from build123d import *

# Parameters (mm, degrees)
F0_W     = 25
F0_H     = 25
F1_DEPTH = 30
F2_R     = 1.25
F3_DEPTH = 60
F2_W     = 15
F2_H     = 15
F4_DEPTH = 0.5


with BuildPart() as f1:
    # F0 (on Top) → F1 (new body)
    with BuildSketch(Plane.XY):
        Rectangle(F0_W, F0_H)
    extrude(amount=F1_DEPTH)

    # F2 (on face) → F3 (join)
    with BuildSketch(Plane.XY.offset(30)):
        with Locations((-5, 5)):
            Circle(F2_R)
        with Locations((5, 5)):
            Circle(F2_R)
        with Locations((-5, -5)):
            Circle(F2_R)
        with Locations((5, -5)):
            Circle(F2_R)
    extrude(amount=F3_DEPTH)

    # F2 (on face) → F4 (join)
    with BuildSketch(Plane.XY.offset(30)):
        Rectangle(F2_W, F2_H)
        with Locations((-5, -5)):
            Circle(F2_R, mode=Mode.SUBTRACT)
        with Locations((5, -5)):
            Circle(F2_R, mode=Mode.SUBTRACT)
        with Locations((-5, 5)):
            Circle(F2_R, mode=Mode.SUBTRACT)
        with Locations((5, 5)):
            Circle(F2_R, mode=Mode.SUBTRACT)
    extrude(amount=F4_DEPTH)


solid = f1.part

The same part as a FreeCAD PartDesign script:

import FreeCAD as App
import Part
import Sketcher

V = App.Vector
Q = App.Units.Quantity

doc = App.newDocument("Part")
params = doc.addObject("Spreadsheet::Sheet", "Params")
for row, (alias, value) in enumerate([
    ("sketch1_width", "25 mm"),
    ("pad1_length", "30 mm"),
    ("sketch2_diameter", "2.5 mm"),
    ("pad2_length", "60 mm"),
    ("sketch3_diameter", "2.5 mm"),
    ("sketch3_width", "15 mm"),
    ("pad3_length", "0.5 mm"),
], start=1):
    params.set(f"A{row}", alias)
    params.set(f"B{row}", "=" + value)
    params.setAlias(f"B{row}", alias)

body = doc.addObject("PartDesign::Body", "Body")

sketch1 = body.newObject("Sketcher::SketchObject", "Sketch")
sketch1.AttachmentSupport = (doc.getObject("XY_Plane"), [""])
sketch1.MapMode = "FlatFace"
sketch1.addGeometry(Part.LineSegment(V(-12.5, 12.5, 0), V(-12.5, -12.5, 0)), False)
sketch1.addGeometry(Part.LineSegment(V(-12.5, -12.5, 0), V(12.5, -12.5, 0)), False)
sketch1.addGeometry(Part.LineSegment(V(12.5, -12.5, 0), V(12.5, 12.5, 0)), False)
sketch1.addGeometry(Part.LineSegment(V(12.5, 12.5, 0), V(-12.5, 12.5, 0)), False)
sketch1.addConstraint(Sketcher.Constraint("Coincident", 0, 2, 1, 1))
sketch1.addConstraint(Sketcher.Constraint("Coincident", 1, 2, 2, 1))
sketch1.addConstraint(Sketcher.Constraint("Coincident", 2, 2, 3, 1))
sketch1.addConstraint(Sketcher.Constraint("Coincident", 3, 2, 0, 1))
sketch1.addConstraint(Sketcher.Constraint("Vertical", 0))
sketch1.addConstraint(Sketcher.Constraint("Horizontal", 1))
sketch1.addConstraint(Sketcher.Constraint("Vertical", 2))
sketch1.addConstraint(Sketcher.Constraint("Horizontal", 3))
sketch1.addConstraint(Sketcher.Constraint("Symmetric", 0, 2, 2, 2, -1, 1))
sketch1.addConstraint(Sketcher.Constraint("Equal", 3, 0))
sketch1.addConstraint(Sketcher.Constraint("DistanceX", 1, 1, 1, 2, Q("25 mm")))
sketch1.setExpression("Constraints[10]", "Params.sketch1_width")
pad1 = body.newObject("PartDesign::Pad", "Pad")
pad1.Profile = sketch1
pad1.setExpression("Length", "Params.pad1_length")

sketch2 = body.newObject("Sketcher::SketchObject", "Sketch001")
sketch2.AttachmentSupport = (doc.getObject("XY_Plane"), [""])
sketch2.MapMode = "FlatFace"
sketch2.AttachmentOffset = App.Placement(V(0, 0, 30), App.Rotation())
sketch2.addGeometry(Part.Circle(V(-5, 5, 0), V(0, 0, 1), 1.25), False)
sketch2.addGeometry(Part.Circle(V(5, 5, 0), V(0, 0, 1), 1.25), False)
sketch2.addGeometry(Part.Circle(V(-5, -5, 0), V(0, 0, 1), 1.25), False)
sketch2.addGeometry(Part.Circle(V(5, -5, 0), V(0, 0, 1), 1.25), False)
sketch2.addConstraint(Sketcher.Constraint("Equal", 0, 1))
sketch2.addConstraint(Sketcher.Constraint("Equal", 1, 2))
sketch2.addConstraint(Sketcher.Constraint("Equal", 2, 3))
sketch2.addConstraint(Sketcher.Constraint("Symmetric", 1, 3, 2, 3, -1, 1))
sketch2.addConstraint(Sketcher.Constraint("Symmetric", 0, 3, 3, 3, -1, 1))
sketch2.addConstraint(Sketcher.Constraint("Symmetric", 0, 3, 1, 3, -2))
sketch2.addConstraint(Sketcher.Constraint("Diameter", 0, Q("2.5 mm")))
sketch2.addConstraint(Sketcher.Constraint("DistanceX", 0, 3, -1, 1, Q("5 mm")))
sketch2.addConstraint(Sketcher.Constraint("DistanceY", -1, 1, 0, 3, Q("5 mm")))
sketch2.setExpression("Constraints[6]", "Params.sketch2_diameter")
pad2 = body.newObject("PartDesign::Pad", "Pad001")
pad2.Profile = sketch2
pad2.setExpression("Length", "Params.pad2_length")

sketch3 = body.newObject("Sketcher::SketchObject", "Sketch002")
sketch3.AttachmentSupport = (doc.getObject("XY_Plane"), [""])
sketch3.MapMode = "FlatFace"
sketch3.AttachmentOffset = App.Placement(V(0, 0, 30), App.Rotation())
sketch3.addGeometry(Part.LineSegment(V(-7.5, 7.5, 0), V(-7.5, -7.5, 0)), False)
sketch3.addGeometry(Part.LineSegment(V(-7.5, -7.5, 0), V(7.5, -7.5, 0)), False)
sketch3.addGeometry(Part.LineSegment(V(7.5, -7.5, 0), V(7.5, 7.5, 0)), False)
sketch3.addGeometry(Part.LineSegment(V(7.5, 7.5, 0), V(-7.5, 7.5, 0)), False)
sketch3.addGeometry(Part.Circle(V(-5, -5, 0), V(0, 0, 1), 1.25), False)
sketch3.addGeometry(Part.Circle(V(5, -5, 0), V(0, 0, 1), 1.25), False)
sketch3.addGeometry(Part.Circle(V(-5, 5, 0), V(0, 0, 1), 1.25), False)
sketch3.addGeometry(Part.Circle(V(5, 5, 0), V(0, 0, 1), 1.25), False)
sketch3.addConstraint(Sketcher.Constraint("Coincident", 0, 2, 1, 1))
sketch3.addConstraint(Sketcher.Constraint("Coincident", 1, 2, 2, 1))
sketch3.addConstraint(Sketcher.Constraint("Coincident", 2, 2, 3, 1))
sketch3.addConstraint(Sketcher.Constraint("Coincident", 3, 2, 0, 1))
sketch3.addConstraint(Sketcher.Constraint("Vertical", 0))
sketch3.addConstraint(Sketcher.Constraint("Horizontal", 1))
sketch3.addConstraint(Sketcher.Constraint("Vertical", 2))
sketch3.addConstraint(Sketcher.Constraint("Horizontal", 3))
sketch3.addConstraint(Sketcher.Constraint("Equal", 4, 5))
sketch3.addConstraint(Sketcher.Constraint("Equal", 5, 6))
sketch3.addConstraint(Sketcher.Constraint("Equal", 6, 7))
sketch3.addConstraint(Sketcher.Constraint("Symmetric", 5, 3, 6, 3, -1, 1))
sketch3.addConstraint(Sketcher.Constraint("Symmetric", 4, 3, 7, 3, -1, 1))
sketch3.addConstraint(Sketcher.Constraint("Symmetric", 0, 2, 2, 2, -1, 1))
sketch3.addConstraint(Sketcher.Constraint("Symmetric", 4, 3, 5, 3, -2))
sketch3.addConstraint(Sketcher.Constraint("Equal", 3, 0))
sketch3.addConstraint(Sketcher.Constraint("Diameter", 4, Q("2.5 mm")))
sketch3.addConstraint(Sketcher.Constraint("DistanceX", 1, 1, 1, 2, Q("15 mm")))
sketch3.addConstraint(Sketcher.Constraint("DistanceX", 4, 3, -1, 1, Q("5 mm")))
sketch3.addConstraint(Sketcher.Constraint("DistanceY", 4, 3, -1, 1, Q("5 mm")))
sketch3.setExpression("Constraints[16]", "Params.sketch3_diameter")
sketch3.setExpression("Constraints[17]", "Params.sketch3_width")
pad3 = body.newObject("PartDesign::Pad", "Pad002")
pad3.Profile = sketch3
pad3.setExpression("Length", "Params.pad3_length")

doc.recompute()
